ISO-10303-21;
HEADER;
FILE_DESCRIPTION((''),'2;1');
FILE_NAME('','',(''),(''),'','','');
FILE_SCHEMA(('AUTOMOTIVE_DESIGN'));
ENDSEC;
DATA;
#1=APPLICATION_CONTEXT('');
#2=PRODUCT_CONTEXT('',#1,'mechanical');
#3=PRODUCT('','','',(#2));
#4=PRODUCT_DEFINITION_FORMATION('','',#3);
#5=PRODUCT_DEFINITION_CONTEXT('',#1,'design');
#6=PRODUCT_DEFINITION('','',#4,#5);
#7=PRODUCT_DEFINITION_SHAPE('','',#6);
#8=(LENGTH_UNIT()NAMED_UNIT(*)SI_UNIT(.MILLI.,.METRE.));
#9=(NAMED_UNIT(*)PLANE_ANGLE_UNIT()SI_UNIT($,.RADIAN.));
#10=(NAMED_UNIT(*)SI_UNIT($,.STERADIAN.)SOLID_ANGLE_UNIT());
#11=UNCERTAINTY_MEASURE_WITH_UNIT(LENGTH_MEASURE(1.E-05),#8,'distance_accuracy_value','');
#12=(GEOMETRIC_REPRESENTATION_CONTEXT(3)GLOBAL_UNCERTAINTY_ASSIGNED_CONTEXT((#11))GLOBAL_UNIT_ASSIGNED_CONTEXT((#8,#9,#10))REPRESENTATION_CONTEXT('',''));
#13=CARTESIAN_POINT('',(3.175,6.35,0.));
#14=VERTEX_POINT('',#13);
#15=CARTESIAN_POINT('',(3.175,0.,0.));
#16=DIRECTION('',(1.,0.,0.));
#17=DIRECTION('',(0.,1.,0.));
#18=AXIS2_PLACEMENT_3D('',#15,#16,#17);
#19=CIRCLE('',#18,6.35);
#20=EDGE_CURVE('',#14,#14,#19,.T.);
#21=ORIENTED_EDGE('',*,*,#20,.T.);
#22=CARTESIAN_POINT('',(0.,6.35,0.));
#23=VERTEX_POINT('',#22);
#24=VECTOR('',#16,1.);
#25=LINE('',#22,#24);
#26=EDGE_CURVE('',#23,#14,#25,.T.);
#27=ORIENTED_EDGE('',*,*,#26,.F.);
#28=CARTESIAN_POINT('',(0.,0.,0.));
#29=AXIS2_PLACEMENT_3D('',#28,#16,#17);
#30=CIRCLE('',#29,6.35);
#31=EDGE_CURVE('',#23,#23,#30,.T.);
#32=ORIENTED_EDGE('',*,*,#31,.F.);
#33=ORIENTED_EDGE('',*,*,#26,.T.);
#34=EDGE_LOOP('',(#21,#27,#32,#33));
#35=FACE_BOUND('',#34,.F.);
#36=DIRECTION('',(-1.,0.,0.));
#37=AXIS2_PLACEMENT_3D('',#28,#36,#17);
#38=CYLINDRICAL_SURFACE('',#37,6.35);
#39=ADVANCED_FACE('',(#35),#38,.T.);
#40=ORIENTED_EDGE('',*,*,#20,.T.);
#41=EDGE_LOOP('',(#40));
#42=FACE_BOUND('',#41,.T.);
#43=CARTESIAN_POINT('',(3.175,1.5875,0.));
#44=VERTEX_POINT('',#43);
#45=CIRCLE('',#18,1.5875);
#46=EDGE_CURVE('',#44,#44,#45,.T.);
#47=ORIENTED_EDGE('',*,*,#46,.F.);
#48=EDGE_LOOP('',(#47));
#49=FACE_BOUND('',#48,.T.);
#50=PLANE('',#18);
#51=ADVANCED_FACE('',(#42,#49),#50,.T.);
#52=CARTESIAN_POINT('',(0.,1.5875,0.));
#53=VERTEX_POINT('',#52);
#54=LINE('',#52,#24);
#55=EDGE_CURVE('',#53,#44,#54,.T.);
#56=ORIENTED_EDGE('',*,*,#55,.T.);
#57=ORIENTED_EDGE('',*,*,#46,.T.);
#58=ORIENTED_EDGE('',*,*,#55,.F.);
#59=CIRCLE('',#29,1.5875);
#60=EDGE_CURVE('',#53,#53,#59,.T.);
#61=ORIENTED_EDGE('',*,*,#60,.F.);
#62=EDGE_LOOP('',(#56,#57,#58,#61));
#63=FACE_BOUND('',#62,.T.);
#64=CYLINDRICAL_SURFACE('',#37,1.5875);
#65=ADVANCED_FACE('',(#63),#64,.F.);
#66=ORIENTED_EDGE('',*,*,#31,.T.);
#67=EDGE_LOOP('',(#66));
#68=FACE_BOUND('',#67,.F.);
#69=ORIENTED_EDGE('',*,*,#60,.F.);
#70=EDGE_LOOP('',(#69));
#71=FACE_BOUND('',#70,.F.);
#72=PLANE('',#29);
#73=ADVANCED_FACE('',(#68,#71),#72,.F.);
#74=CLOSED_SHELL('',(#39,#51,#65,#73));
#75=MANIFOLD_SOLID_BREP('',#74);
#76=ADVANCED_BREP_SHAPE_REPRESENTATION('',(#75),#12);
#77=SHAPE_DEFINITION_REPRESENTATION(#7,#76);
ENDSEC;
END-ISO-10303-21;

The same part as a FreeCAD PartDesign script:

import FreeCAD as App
import Part
import Sketcher
Q = App.Units.Quantity

doc = App.newDocument("Part")
params = doc.addObject("Spreadsheet::Sheet", "Params")
for row, (alias, value) in enumerate([
    ("sketch1_diameter", "0.5 in"),
    ("pad1_length", "0.125 in"),
    ("sketch2_diameter", "0.125 in"),
    ("pocket1_length", "0.125 in"),
], start=1):
    params.set(f"A{row}", alias)
    params.set(f"B{row}", "=" + value)
    params.setAlias(f"B{row}", alias)

body = doc.addObject("PartDesign::Body", "Body")

# Sketch on YZ plane
sketch1 = body.newObject("Sketcher::SketchObject", "Sketch")
sketch1.AttachmentSupport = (doc.getObject("YZ_Plane"), [""])
sketch1.MapMode = "FlatFace"
sketch1.addGeometry(Part.Circle(App.Vector(0, 0, 0), App.Vector(0, 0, 1), 6.35), False)
sketch1.addConstraint([
    Sketcher.Constraint("Coincident", 0, 3, -1, 1),
    Sketcher.Constraint("Diameter", 0, Q("0.5 in")),
])
sketch1.setExpression("Constraints[1]", "Params.sketch1_diameter")
pad1 = body.newObject("PartDesign::Pad", "Pad")
pad1.Profile = sketch1
pad1.setExpression("Length", "Params.pad1_length")

# Sketch on YZ plane
sketch2 = body.newObject("Sketcher::SketchObject", "Sketch001")
sketch2.AttachmentSupport = (doc.getObject("YZ_Plane"), [""])
sketch2.MapMode = "FlatFace"
sketch2.addGeometry(Part.Circle(App.Vector(0, 0, 0), App.Vector(0, 0, 1), 1.5875), False)
sketch2.addConstraint([
    Sketcher.Constraint("Coincident", 0, 3, -1, 1),
    Sketcher.Constraint("Diameter", 0, Q("0.125 in")),
])
sketch2.setExpression("Constraints[1]", "Params.sketch2_diameter")
pocket1 = body.newObject("PartDesign::Pocket", "Pocket")
pocket1.Profile = sketch2
pocket1.setExpression("Length", "Params.pocket1_length")
pocket1.Reversed = True

doc.recompute()
